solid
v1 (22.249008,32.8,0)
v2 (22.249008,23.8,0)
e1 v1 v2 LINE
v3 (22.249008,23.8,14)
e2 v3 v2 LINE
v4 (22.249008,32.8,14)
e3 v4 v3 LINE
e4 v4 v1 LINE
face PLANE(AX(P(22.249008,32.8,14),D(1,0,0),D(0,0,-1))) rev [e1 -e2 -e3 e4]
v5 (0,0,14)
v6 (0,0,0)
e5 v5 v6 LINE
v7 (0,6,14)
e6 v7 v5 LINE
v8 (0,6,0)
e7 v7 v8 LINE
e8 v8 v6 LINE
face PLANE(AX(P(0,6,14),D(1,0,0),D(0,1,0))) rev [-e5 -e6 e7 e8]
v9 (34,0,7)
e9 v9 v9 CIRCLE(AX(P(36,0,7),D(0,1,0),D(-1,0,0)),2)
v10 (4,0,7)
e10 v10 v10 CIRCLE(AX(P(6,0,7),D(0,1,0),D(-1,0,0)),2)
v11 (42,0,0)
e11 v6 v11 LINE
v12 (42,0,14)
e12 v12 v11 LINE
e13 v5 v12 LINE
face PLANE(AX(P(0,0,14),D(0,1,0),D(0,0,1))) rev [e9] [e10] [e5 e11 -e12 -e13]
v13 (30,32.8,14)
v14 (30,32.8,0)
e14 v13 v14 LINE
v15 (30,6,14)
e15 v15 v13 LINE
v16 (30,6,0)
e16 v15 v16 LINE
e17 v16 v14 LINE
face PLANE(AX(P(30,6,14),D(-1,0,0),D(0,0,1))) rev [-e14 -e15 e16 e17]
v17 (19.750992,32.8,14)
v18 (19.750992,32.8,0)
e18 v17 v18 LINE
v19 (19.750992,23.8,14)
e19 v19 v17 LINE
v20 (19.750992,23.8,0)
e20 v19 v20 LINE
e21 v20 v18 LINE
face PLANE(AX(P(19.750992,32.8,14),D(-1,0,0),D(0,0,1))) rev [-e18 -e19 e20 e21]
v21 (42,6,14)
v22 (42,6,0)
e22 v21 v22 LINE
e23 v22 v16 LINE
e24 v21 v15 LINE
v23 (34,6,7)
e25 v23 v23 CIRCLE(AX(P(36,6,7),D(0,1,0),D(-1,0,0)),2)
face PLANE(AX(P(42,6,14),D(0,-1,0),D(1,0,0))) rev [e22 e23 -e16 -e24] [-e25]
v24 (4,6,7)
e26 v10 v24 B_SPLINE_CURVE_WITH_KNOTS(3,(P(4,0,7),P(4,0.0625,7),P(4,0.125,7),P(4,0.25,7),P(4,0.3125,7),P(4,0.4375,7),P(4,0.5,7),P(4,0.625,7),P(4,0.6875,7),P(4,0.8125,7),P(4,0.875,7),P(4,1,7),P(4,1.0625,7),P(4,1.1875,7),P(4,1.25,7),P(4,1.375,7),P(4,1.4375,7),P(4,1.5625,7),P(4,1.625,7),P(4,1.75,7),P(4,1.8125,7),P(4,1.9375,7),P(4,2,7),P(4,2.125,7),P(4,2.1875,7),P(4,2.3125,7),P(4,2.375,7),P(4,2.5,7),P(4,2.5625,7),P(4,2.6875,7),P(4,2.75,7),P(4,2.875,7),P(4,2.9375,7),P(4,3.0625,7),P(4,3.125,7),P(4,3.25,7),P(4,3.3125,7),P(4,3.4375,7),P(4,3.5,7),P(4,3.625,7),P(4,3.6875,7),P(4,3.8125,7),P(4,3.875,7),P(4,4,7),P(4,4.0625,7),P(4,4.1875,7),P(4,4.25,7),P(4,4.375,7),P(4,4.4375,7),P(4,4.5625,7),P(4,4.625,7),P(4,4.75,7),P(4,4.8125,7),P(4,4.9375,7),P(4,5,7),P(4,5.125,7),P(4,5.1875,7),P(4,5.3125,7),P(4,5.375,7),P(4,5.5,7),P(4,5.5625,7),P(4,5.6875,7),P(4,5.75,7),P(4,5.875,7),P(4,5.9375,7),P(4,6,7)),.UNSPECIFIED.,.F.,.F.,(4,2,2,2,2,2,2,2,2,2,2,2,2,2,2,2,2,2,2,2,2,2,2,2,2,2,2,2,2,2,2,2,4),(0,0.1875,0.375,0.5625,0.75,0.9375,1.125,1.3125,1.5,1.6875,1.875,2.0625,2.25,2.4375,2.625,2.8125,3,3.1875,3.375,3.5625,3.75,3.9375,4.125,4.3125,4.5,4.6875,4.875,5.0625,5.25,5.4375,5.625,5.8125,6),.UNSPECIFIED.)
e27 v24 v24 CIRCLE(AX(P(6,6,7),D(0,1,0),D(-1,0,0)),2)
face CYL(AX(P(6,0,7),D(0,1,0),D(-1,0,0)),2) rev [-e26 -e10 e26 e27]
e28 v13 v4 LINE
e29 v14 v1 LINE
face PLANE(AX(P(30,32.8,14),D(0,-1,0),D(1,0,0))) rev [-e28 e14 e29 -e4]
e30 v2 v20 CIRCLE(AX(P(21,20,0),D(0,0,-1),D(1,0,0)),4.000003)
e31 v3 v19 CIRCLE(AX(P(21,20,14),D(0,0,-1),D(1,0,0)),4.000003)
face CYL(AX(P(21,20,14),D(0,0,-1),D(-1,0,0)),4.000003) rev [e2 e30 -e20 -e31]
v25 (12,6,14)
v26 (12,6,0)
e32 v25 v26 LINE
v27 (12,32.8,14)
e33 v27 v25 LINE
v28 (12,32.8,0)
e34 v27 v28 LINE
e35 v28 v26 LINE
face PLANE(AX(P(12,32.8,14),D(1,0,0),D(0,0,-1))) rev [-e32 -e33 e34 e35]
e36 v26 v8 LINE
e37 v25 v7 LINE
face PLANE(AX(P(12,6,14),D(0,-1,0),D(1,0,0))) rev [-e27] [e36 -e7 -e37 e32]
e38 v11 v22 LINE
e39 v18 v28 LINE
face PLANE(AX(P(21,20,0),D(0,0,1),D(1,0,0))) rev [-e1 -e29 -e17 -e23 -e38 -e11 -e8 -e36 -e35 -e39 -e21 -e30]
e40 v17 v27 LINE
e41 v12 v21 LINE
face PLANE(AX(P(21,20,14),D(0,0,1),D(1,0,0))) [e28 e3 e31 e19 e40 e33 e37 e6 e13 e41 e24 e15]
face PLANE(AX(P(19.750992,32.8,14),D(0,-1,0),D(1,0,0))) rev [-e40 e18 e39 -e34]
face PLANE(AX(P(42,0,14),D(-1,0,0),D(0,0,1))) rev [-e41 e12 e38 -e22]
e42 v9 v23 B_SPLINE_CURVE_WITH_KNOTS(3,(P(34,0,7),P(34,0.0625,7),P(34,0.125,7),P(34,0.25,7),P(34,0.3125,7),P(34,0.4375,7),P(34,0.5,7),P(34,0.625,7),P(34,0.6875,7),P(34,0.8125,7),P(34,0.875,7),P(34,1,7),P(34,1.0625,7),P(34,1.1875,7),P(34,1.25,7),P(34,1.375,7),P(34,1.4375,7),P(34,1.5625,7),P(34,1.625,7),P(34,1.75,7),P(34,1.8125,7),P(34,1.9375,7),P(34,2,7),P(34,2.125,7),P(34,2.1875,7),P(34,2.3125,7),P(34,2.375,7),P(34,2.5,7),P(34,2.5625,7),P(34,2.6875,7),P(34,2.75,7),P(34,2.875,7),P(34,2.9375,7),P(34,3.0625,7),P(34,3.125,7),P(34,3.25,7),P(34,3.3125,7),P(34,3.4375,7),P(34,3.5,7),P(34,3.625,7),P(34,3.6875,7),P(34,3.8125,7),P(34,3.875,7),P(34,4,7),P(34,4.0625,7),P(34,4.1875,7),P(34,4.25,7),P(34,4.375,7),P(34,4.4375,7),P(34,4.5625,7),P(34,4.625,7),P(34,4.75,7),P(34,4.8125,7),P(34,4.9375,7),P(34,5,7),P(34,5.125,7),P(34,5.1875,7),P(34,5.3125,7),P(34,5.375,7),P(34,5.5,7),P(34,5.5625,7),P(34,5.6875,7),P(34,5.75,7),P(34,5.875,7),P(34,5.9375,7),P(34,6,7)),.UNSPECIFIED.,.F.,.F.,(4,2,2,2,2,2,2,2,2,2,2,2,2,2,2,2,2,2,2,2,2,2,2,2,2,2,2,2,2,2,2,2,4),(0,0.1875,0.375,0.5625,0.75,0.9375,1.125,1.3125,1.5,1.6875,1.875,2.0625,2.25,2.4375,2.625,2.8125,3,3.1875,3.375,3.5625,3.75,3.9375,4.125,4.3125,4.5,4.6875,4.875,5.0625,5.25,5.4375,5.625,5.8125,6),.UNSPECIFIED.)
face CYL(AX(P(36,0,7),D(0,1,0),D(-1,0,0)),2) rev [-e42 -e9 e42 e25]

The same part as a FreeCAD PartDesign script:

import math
import FreeCAD as App
import Part
import Sketcher
from FreeCAD import Vector

doc = App.newDocument("Part")
body = doc.addObject("PartDesign::Body", "Body")

# Sketch on XY plane
sketch1 = body.newObject("Sketcher::SketchObject", "Sketch")
sketch1.AttachmentSupport = (doc.getObject("XY_Plane"), [""])
sketch1.MapMode = "FlatFace"
sketch1.addGeometry(Part.LineSegment(Vector(0, 0, 0), Vector(42, 0, 0)), False)
sketch1.addGeometry(Part.LineSegment(Vector(42, 0, 0), Vector(42, 6, 0)), False)
sketch1.addGeometry(Part.LineSegment(Vector(42, 6, 0), Vector(30, 6, 0)), False)
sketch1.addGeometry(Part.LineSegment(Vector(30, 6, 0), Vector(30, 32.8, 0)), False)
sketch1.addGeometry(Part.LineSegment(Vector(30, 32.8, 0), Vector(22.249008, 32.8, 0)), False)
sketch1.addGeometry(Part.LineSegment(Vector(22.249008, 32.8, 0), Vector(22.249008, 23.8, 0)), False)
sketch1.addGeometry(Part.ArcOfCircle(Part.Circle(Vector(21, 20, 0), Vector(0, 0, 1), 4.000003), math.radians(108.194985), math.radians(431.805015)), False)
sketch1.addGeometry(Part.LineSegment(Vector(19.750992, 23.8, 0), Vector(19.750992, 32.8, 0)), False)
sketch1.addGeometry(Part.LineSegment(Vector(19.750992, 32.8, 0), Vector(12, 32.8, 0)), False)
sketch1.addGeometry(Part.LineSegment(Vector(12, 32.8, 0), Vector(12, 6, 0)), False)
sketch1.addGeometry(Part.LineSegment(Vector(12, 6, 0), Vector(0, 6, 0)), False)
sketch1.addGeometry(Part.LineSegment(Vector(0, 6, 0), Vector(0, 0, 0)), False)
sketch1.addConstraint(Sketcher.Constraint("Coincident", 0, 2, 1, 1))
sketch1.addConstraint(Sketcher.Constraint("Coincident", 1, 2, 2, 1))
sketch1.addConstraint(Sketcher.Constraint("Coincident", 2, 2, 3, 1))
sketch1.addConstraint(Sketcher.Constraint("Coincident", 3, 2, 4, 1))
sketch1.addConstraint(Sketcher.Constraint("Coincident", 4, 2, 5, 1))
sketch1.addConstraint(Sketcher.Constraint("Coincident", 5, 2, 6, 2))
sketch1.addConstraint(Sketcher.Constraint("Coincident", 6, 1, 7, 1))
sketch1.addConstraint(Sketcher.Constraint("Coincident", 7, 2, 8, 1))
sketch1.addConstraint(Sketcher.Constraint("Coincident", 8, 2, 9, 1))
sketch1.addConstraint(Sketcher.Constraint("Coincident", 9, 2, 10, 1))
sketch1.addConstraint(Sketcher.Constraint("Coincident", 10, 2, 11, 1))
sketch1.addConstraint(Sketcher.Constraint("Coincident", 11, 2, 0, 1))
sketch1.addConstraint(Sketcher.Constraint("Horizontal", 0))
sketch1.addConstraint(Sketcher.Constraint("Vertical", 1))
sketch1.addConstraint(Sketcher.Constraint("Horizontal", 2))
sketch1.addConstraint(Sketcher.Constraint("Vertical", 3))
sketch1.addConstraint(Sketcher.Constraint("Horizontal", 4))
sketch1.addConstraint(Sketcher.Constraint("Vertical", 5))
sketch1.addConstraint(Sketcher.Constraint("Vertical", 7))
sketch1.addConstraint(Sketcher.Constraint("Horizontal", 8))
sketch1.addConstraint(Sketcher.Constraint("Vertical", 9))
sketch1.addConstraint(Sketcher.Constraint("Horizontal", 10))
sketch1.addConstraint(Sketcher.Constraint("Vertical", 11))
sketch1.addConstraint(Sketcher.Constraint("Coincident", 11, 2, -1, 1))
sketch1.addConstraint(Sketcher.Constraint("Horizontal", 5, 2, 6, 1))
sketch1.addConstraint(Sketcher.Constraint("Horizontal", 4, 2, 7, 2))
sketch1.addConstraint(Sketcher.Constraint("Horizontal", 2, 2, 9, 2))
sketch1.addConstraint(Sketcher.Constraint("Equal", 4, 8))
sketch1.addConstraint(Sketcher.Constraint("Equal", 2, 10))
sketch1.addConstraint(Sketcher.Constraint("DistanceX", 0, 1, 0, 2, 42.0))
sketch1.addConstraint(Sketcher.Constraint("DistanceX", 2, 2, 2, 1, 12.0))
sketch1.addConstraint(Sketcher.Constraint("DistanceY", 1, 1, 1, 2, 6.0))
sketch1.addConstraint(Sketcher.Constraint("DistanceY", 5, 2, 5, 1, 9.0))
sketch1.addConstraint(Sketcher.Constraint("DistanceY", 3, 1, 3, 2, 26.8))
sketch1.addConstraint(Sketcher.Constraint("DistanceY", -1, 1, 6, 3, 20.0))
sketch1.addConstraint(Sketcher.Constraint("Radius", 6, 4.000003))
pad1 = body.newObject("PartDesign::Pad", "Pad")
pad1.Profile = sketch1
pad1.Length = 14

# Sketch on XZ plane
sketch2 = body.newObject("Sketcher::SketchObject", "Sketch001")
sketch2.AttachmentSupport = (doc.getObject("XZ_Plane"), [""])
sketch2.MapMode = "FlatFace"
sketch2.AttachmentOffset = App.Placement(Vector(0, 0, -6), App.Rotation())
sketch2.addGeometry(Part.Circle(Vector(6, 7, 0), Vector(0, 0, 1), 2), False)
sketch2.addGeometry(Part.Circle(Vector(36, 7, 0), Vector(0, 0, 1), 2), False)
sketch2.addConstraint(Sketcher.Constraint("Equal", 0, 1))
sketch2.addConstraint(Sketcher.Constraint("Horizontal", 0, 3, 1, 3))
sketch2.addConstraint(Sketcher.Constraint("Diameter", 0, 4.0))
sketch2.addConstraint(Sketcher.Constraint("DistanceX", -1, 1, 0, 3, 6.0))
sketch2.addConstraint(Sketcher.Constraint("DistanceY", -1, 1, 0, 3, 7.0))
sketch2.addConstraint(Sketcher.Constraint("DistanceX", -1, 1, 1, 3, 36.0))
pocket1 = body.newObject("PartDesign::Pocket", "Pocket")
pocket1.Profile = sketch2
pocket1.Type = "ThroughAll"
pocket1.Reversed = True

doc.recompute()
